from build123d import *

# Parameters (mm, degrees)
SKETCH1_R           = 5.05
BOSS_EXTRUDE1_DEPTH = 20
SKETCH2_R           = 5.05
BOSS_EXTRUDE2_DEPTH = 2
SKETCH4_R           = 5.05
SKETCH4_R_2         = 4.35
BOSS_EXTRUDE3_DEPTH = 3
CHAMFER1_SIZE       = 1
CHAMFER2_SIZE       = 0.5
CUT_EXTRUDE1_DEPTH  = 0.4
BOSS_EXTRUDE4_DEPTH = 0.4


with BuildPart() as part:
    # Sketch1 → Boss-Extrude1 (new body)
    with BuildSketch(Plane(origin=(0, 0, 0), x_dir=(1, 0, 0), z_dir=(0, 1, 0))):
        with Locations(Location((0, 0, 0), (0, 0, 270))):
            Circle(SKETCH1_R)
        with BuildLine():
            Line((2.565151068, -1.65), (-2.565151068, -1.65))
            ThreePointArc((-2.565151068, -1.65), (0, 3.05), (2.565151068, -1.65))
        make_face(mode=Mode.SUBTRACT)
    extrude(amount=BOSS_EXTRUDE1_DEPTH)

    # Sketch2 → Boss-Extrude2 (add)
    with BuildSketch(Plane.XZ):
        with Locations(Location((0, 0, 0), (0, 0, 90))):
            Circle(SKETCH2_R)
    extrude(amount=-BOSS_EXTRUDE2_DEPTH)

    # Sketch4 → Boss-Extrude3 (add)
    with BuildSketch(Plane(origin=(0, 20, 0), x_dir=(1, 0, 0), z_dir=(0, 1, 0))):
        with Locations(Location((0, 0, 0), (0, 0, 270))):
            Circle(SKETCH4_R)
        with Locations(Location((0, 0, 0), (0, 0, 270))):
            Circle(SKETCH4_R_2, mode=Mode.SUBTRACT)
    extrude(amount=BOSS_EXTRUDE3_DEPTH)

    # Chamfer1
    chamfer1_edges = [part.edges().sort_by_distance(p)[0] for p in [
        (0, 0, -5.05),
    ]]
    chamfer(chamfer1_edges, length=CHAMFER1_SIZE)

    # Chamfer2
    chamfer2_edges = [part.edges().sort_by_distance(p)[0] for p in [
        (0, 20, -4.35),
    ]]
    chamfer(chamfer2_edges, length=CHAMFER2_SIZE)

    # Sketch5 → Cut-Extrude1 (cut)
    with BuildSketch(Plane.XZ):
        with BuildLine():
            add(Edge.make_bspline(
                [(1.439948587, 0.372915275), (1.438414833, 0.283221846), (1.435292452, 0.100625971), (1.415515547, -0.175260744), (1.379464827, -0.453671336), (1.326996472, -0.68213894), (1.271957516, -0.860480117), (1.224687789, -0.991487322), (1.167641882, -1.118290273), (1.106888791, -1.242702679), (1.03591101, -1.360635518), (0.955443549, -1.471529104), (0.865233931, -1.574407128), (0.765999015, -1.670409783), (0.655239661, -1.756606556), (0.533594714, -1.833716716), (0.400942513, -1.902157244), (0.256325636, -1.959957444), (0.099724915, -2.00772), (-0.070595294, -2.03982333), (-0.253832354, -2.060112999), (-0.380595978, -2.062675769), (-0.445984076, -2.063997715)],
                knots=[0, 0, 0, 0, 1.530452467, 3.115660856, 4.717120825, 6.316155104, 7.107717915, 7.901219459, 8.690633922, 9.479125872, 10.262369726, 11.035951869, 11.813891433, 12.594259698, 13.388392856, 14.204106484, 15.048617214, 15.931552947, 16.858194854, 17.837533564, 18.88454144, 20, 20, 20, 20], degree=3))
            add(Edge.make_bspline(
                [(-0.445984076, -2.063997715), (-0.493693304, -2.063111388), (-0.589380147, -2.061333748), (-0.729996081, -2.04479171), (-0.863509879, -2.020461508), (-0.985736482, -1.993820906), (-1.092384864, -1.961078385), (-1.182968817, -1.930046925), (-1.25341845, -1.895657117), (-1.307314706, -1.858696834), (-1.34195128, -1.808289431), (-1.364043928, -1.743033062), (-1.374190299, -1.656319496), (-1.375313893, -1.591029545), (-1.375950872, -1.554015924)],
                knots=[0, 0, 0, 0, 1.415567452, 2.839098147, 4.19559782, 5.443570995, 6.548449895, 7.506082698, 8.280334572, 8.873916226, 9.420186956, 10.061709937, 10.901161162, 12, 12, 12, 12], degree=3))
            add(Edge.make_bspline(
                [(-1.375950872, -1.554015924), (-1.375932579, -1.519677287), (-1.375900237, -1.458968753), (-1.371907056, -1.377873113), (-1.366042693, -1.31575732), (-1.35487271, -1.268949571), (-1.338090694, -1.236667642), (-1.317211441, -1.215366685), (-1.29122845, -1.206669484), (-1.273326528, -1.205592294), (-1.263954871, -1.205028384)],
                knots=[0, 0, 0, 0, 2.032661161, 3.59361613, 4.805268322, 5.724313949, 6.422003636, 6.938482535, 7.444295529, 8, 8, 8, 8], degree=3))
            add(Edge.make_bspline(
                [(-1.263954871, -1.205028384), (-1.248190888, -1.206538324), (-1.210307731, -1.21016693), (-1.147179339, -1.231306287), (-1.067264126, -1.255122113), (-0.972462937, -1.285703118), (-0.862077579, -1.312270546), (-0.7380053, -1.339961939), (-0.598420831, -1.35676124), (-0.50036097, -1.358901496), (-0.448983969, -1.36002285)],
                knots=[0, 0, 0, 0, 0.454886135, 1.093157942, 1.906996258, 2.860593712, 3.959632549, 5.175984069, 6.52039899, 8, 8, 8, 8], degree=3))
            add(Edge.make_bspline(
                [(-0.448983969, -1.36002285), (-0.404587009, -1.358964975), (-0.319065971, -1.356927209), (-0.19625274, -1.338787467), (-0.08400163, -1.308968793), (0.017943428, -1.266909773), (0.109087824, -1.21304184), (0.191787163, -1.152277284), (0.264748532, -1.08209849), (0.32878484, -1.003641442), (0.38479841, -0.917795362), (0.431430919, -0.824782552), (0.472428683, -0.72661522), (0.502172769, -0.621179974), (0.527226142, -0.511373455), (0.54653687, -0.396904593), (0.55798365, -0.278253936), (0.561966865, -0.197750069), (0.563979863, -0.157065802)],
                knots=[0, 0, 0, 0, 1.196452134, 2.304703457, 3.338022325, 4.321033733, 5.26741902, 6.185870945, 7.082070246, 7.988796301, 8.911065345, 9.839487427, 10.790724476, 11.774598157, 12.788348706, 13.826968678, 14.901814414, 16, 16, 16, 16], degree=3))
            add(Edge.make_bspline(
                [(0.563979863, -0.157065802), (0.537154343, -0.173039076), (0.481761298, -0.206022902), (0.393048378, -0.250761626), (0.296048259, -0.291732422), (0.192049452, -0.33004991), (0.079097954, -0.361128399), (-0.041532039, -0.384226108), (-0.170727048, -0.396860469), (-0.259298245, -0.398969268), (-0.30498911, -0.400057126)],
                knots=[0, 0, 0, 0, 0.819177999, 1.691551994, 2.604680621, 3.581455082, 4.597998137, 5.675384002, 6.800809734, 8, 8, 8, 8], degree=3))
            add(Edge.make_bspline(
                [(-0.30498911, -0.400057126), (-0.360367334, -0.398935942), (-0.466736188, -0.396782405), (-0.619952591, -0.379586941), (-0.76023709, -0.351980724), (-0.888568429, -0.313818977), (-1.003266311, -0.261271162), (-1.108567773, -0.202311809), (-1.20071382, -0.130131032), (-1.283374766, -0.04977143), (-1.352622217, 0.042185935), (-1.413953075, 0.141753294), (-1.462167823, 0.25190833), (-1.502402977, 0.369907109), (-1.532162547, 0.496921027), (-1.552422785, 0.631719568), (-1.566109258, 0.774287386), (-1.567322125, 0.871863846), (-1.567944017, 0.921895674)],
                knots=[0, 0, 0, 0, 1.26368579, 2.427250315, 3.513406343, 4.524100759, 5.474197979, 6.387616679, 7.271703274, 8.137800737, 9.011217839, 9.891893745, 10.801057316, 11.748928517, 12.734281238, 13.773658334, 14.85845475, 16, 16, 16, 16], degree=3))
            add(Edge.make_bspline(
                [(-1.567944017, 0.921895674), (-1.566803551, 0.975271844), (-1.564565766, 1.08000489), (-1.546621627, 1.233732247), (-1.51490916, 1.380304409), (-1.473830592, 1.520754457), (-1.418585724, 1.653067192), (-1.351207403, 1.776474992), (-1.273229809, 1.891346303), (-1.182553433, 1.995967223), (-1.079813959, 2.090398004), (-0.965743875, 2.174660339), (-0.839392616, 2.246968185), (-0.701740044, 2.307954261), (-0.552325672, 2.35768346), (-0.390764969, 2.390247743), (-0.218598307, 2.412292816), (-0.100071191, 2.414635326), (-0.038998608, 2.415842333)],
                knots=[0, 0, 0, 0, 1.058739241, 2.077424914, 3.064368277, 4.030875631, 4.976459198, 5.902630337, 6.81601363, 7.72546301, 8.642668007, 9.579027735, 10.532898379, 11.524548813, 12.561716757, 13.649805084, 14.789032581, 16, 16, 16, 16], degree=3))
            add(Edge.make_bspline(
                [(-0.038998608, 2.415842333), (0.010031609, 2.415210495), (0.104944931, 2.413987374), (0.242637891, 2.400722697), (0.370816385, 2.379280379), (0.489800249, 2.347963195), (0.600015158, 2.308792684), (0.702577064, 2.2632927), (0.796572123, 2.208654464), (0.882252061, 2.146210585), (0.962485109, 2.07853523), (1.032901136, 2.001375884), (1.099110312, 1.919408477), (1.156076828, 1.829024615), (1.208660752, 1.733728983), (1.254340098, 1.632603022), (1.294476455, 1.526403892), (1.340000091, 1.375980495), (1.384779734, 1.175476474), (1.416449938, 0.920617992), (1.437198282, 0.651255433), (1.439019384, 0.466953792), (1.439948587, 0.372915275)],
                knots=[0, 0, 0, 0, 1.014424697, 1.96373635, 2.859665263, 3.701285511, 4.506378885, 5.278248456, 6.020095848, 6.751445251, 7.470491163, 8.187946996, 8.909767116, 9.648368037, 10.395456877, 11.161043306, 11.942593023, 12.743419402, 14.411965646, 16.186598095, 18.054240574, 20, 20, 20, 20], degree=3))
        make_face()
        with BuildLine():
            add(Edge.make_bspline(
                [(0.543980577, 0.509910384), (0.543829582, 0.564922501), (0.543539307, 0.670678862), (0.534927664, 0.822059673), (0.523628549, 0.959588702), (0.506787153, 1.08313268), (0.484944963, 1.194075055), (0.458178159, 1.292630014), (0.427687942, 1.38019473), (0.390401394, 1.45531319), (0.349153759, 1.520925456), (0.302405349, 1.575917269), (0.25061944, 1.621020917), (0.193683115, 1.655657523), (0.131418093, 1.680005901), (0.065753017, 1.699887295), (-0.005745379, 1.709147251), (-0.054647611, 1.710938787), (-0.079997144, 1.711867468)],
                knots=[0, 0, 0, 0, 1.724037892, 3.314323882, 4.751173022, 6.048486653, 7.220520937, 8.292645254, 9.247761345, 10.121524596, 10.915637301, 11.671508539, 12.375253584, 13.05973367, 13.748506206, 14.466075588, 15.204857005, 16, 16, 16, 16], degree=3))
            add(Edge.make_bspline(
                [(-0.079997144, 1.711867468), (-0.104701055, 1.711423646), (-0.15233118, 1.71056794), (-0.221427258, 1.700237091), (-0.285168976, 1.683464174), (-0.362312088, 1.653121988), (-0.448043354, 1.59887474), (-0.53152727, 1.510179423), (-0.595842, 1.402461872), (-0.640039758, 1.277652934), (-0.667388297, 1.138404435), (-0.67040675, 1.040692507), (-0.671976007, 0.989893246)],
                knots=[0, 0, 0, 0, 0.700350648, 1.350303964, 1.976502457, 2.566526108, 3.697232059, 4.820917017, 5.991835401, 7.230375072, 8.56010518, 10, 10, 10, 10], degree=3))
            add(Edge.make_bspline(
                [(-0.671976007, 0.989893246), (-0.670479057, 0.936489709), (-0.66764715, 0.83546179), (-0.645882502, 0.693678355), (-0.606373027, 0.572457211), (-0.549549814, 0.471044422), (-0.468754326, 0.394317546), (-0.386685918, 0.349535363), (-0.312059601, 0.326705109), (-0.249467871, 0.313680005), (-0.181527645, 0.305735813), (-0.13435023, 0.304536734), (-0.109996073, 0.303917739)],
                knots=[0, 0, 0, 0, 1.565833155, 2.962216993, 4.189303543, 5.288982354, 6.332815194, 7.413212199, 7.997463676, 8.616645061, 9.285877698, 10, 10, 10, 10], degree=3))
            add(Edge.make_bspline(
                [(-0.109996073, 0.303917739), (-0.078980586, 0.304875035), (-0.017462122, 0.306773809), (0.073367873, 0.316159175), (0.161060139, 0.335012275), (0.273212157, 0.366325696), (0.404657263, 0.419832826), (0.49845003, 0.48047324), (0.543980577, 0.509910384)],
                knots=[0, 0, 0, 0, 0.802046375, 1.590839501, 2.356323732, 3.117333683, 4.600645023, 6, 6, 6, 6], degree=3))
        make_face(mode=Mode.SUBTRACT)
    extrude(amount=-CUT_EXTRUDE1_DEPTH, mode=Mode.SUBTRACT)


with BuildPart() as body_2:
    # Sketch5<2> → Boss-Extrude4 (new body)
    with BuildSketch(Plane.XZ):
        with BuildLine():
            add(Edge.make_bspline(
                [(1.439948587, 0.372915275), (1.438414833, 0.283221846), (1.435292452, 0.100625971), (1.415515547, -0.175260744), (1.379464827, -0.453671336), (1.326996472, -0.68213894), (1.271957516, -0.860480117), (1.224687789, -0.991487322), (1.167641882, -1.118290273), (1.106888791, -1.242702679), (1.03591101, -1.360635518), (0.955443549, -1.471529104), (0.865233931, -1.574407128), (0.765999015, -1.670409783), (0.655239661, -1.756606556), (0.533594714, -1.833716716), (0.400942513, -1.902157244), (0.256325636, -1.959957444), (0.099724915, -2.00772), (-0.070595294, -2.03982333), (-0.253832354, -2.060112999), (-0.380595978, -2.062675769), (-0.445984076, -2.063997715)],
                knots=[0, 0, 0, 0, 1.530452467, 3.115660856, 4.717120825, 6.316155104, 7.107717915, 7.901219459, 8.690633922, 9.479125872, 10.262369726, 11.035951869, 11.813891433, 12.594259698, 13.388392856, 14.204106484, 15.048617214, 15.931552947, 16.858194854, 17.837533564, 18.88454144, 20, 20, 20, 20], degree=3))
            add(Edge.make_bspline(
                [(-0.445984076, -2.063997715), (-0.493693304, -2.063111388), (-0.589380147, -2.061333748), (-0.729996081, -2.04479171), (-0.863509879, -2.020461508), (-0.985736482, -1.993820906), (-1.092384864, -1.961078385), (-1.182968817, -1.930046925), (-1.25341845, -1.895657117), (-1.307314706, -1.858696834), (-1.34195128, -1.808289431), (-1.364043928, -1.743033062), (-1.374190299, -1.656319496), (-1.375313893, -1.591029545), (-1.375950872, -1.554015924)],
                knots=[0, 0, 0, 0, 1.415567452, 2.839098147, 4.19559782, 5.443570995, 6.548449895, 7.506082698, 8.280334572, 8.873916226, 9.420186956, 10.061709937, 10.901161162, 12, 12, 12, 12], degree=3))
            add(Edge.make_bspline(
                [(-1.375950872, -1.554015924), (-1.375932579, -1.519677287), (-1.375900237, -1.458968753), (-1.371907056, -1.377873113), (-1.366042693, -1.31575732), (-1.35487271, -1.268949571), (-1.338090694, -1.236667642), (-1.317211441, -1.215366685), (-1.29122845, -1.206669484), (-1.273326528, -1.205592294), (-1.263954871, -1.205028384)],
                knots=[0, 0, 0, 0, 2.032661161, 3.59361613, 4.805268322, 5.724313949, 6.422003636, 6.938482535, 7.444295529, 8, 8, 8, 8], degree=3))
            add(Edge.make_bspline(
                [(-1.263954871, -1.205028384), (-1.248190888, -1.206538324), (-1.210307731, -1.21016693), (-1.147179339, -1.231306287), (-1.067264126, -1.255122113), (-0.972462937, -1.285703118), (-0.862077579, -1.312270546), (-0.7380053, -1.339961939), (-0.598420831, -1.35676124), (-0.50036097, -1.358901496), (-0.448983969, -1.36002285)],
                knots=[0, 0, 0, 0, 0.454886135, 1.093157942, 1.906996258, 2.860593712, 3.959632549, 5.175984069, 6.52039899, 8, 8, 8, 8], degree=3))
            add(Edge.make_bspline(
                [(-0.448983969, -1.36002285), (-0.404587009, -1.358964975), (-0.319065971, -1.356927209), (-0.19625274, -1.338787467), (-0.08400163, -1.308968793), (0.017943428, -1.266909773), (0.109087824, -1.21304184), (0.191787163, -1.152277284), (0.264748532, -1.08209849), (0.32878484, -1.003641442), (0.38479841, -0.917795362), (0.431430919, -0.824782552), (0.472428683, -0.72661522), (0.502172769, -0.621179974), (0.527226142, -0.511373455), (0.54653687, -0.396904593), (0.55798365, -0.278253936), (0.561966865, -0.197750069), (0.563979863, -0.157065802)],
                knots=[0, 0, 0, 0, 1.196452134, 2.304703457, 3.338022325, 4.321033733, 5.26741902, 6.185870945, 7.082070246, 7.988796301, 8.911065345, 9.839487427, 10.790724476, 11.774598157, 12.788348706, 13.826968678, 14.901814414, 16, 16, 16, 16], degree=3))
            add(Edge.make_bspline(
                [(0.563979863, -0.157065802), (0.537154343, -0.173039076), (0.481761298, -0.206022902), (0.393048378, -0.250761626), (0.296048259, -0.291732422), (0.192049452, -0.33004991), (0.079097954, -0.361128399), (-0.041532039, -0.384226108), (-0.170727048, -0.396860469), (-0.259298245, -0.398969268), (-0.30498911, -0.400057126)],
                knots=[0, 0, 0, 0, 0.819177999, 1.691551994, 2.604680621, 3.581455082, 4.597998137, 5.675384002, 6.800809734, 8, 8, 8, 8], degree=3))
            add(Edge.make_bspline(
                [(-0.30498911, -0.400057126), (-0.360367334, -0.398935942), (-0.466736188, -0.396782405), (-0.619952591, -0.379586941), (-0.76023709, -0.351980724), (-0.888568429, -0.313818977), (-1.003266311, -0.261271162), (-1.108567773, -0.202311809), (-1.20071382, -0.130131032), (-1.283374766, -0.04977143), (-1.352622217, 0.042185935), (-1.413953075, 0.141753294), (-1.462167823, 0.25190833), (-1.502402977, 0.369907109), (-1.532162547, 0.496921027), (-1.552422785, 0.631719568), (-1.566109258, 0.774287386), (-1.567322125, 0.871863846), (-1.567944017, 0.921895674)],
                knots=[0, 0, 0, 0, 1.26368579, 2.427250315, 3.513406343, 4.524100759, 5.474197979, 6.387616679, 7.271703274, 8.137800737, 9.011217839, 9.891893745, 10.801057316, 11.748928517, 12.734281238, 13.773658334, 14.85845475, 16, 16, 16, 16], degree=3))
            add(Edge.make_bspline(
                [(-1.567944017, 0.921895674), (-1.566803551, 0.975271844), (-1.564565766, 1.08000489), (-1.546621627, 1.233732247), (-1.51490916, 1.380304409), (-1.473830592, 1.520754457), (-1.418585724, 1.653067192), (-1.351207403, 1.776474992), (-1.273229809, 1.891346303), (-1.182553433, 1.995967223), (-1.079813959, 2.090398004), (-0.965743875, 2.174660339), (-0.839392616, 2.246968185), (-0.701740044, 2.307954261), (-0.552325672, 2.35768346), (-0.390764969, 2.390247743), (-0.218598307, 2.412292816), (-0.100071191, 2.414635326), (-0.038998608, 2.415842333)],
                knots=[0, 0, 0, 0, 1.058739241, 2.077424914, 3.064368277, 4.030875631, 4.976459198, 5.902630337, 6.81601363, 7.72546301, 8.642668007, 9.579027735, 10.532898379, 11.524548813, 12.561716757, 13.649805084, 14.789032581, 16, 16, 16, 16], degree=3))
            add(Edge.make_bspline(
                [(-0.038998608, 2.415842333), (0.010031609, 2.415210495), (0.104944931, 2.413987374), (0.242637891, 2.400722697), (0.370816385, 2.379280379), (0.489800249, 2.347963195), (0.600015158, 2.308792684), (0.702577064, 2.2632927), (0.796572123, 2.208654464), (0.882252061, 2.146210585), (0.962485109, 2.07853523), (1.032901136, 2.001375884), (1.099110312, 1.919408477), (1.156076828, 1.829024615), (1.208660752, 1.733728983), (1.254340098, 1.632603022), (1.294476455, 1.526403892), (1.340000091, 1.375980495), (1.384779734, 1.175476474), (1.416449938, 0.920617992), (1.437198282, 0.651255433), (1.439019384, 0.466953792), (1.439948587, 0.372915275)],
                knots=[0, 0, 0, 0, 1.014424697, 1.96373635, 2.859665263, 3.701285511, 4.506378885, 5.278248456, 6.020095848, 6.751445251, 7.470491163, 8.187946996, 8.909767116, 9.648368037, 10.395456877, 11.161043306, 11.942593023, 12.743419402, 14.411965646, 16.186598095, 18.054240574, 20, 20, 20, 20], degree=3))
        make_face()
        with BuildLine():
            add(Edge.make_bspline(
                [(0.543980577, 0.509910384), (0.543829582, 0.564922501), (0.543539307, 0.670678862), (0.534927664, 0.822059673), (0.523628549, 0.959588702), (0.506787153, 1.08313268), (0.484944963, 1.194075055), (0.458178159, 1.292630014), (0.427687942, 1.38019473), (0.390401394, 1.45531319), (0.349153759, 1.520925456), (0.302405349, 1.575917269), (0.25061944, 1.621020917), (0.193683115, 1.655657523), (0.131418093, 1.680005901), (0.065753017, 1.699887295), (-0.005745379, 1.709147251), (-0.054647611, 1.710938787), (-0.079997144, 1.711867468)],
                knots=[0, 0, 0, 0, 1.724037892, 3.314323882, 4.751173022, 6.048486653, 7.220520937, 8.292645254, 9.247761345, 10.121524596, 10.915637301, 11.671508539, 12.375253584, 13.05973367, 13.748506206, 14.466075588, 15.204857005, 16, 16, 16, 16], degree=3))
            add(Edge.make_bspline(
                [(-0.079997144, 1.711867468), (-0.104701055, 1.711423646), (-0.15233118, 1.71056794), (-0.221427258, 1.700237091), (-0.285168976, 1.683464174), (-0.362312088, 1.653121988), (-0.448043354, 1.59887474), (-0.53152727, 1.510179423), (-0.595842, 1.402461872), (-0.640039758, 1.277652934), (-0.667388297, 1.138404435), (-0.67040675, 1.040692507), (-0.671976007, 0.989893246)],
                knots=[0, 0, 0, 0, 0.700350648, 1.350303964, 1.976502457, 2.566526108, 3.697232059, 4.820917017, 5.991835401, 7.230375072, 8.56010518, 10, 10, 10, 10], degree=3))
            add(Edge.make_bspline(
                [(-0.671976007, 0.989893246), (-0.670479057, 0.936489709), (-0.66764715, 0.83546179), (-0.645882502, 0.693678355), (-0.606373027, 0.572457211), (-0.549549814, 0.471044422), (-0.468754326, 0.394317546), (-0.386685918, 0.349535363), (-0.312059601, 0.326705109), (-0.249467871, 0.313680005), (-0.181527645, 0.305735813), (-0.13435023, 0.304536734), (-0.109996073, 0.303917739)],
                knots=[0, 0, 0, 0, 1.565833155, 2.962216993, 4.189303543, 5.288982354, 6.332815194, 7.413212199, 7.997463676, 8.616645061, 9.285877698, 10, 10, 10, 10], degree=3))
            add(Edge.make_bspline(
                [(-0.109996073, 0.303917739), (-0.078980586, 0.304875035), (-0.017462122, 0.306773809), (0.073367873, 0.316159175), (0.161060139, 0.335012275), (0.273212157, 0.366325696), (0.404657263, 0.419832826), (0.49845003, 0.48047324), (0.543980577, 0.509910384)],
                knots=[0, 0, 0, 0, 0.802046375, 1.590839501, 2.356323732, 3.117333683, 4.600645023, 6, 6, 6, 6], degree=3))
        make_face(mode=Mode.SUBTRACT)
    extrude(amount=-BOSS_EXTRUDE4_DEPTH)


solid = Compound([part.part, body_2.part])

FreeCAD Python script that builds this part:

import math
import FreeCAD as App
import Part
import Sketcher
from FreeCAD import Vector


def edges_at(feature, points):
    """Names of the edges that pass closest to the given points."""
    edges = feature.Shape.Edges
    near = lambda p: min(range(len(edges)), key=lambda i: edges[i].distToShape(Part.Vertex(*p))[0])
    return sorted({f"Edge{near(p) + 1}" for p in points})

doc = App.newDocument("Part")
body = doc.addObject("PartDesign::Body", "Body")

# Sketch on XZ plane
sketch1 = doc.addObject("Sketcher::SketchObject", "Sketch")
body.addObject(sketch1)
sketch1.AttachmentSupport = (doc.XZ_Plane, [""])
sketch1.MapMode = "FlatFace"
sketch1.addGeometry([
    Part.Circle(Vector(0, 0, 0), Vector(0, 0, 1), 5),
    Part.ArcOfCircle(Part.Circle(Vector(0, 0, 0), Vector(0, 0, 1), 3), math.radians(147), math.radians(393)),
    Part.LineSegment(Vector(2.6, 1.6, 0), Vector(-2.6, 1.6, 0)),
], False)
sketch1.addConstraint([
    Sketcher.Constraint("Coincident", 1, 1, 2, 2),
    Sketcher.Constraint("Coincident", 2, 1, 1, 2),
    Sketcher.Constraint("Horizontal", 2),
    Sketcher.Constraint("Coincident", 0, 3, -1, 1),
    Sketcher.Constraint("Coincident", 1, 3, -1, 1),
    Sketcher.Constraint("Diameter", 0, 10.1),
    Sketcher.Constraint("Radius", 1, 3.05),
    Sketcher.Constraint("DistanceY", -1, 1, 1, 1, 1.65),
])
pad1 = doc.addObject("PartDesign::Pad", "Pad")
body.addObject(pad1)
pad1.Profile = sketch1
pad1.Length = 20
pad1.Reversed = True

# Sketch on XZ plane
sketch2 = doc.addObject("Sketcher::SketchObject", "Sketch001")
body.addObject(sketch2)
sketch2.AttachmentSupport = (doc.XZ_Plane, [""])
sketch2.MapMode = "FlatFace"
sketch2.addGeometry(Part.Circle(Vector(0, 0, 0), Vector(0, 0, 1), 5), False)
sketch2.addConstraint([
    Sketcher.Constraint("Coincident", 0, 3, -1, 1),
    Sketcher.Constraint("Diameter", 0, 10.1),
])
pad2 = doc.addObject("PartDesign::Pad", "Pad001")
body.addObject(pad2)
pad2.Profile = sketch2
pad2.Length = 2
pad2.Reversed = True

# Sketch on XZ plane
sketch3 = doc.addObject("Sketcher::SketchObject", "Sketch002")
body.addObject(sketch3)
sketch3.AttachmentSupport = (doc.XZ_Plane, [""])
sketch3.MapMode = "FlatFace"
sketch3.AttachmentOffset = App.Placement(Vector(0, 0, -20), App.Rotation())
sketch3.addGeometry([
    Part.Circle(Vector(0, 0, 0), Vector(0, 0, 1), 5),
    Part.Circle(Vector(0, 0, 0), Vector(0, 0, 1), 4.3),
], False)
sketch3.addConstraint([
    Sketcher.Constraint("Coincident", 0, 3, -1, 1),
    Sketcher.Constraint("Coincident", 1, 3, -1, 1),
    Sketcher.Constraint("Diameter", 0, 10.1),
    Sketcher.Constraint("Diameter", 1, 8.7),
])
pad3 = doc.addObject("PartDesign::Pad", "Pad002")
body.addObject(pad3)
pad3.Profile = sketch3
pad3.Length = 3
pad3.Reversed = True
doc.recompute()

chamfer = doc.addObject("PartDesign::Chamfer", "Chamfer")
body.addObject(chamfer)
chamfer.Base = (pad3, edges_at(pad3, [(0, 0, -5.05)]))
chamfer.Size = 1
doc.recompute()

chamfer2 = doc.addObject("PartDesign::Chamfer", "Chamfer001")
body.addObject(chamfer2)
chamfer2.Base = (chamfer, edges_at(chamfer, [(0, 20, -4.35)]))
chamfer2.Size = 0.5

# Sketch on XZ plane
sketch4 = doc.addObject("Sketcher::SketchObject", "Sketch003")
body.addObject(sketch4)
sketch4.AttachmentSupport = (doc.XZ_Plane, [""])
sketch4.MapMode = "FlatFace"
sketch4.addGeometry([
    Part.BSplineCurve([Vector(1.439949, 0.372915, 0), Vector(1.438415, 0.283222, 0), Vector(1.435292, 0.100626, 0), Vector(1.415516, -0.175261, 0), Vector(1.379465, -0.453671, 0), Vector(1.326996, -0.682139, 0), Vector(1.271958, -0.86048, 0), Vector(1.224688, -0.991487, 0), Vector(1.167642, -1.11829, 0), Vector(1.106889, -1.242703, 0), Vector(1.035911, -1.360636, 0), Vector(0.955444, -1.471529, 0), Vector(0.865234, -1.574407, 0), Vector(0.765999, -1.67041, 0), Vector(0.65524, -1.756607, 0), Vector(0.533595, -1.833717, 0), Vector(0.400943, -1.902157, 0), Vector(0.256326, -1.959957, 0), Vector(0.099725, -2.00772, 0), Vector(-0.070595, -2.039823, 0), Vector(-0.253832, -2.060113, 0), Vector(-0.380596, -2.062676, 0), Vector(-0.445984, -2.063998, 0)], [4, 1, 1, 1, 1, 1, 1, 1, 1, 1, 1, 1, 1, 1, 1, 1, 1, 1, 1, 1, 4], [0, 1.530452467, 3.115660856, 4.717120825, 6.316155104, 7.107717915, 7.901219459, 8.690633922, 9.479125872, 10.262369726, 11.035951869, 11.813891433, 12.594259698, 13.388392856, 14.204106484, 15.048617214, 15.931552947, 16.858194854, 17.837533564, 18.88454144, 20], False, 3, [1, 1, 1, 1, 1, 1, 1, 1, 1, 1, 1, 1, 1, 1, 1, 1, 1, 1, 1, 1, 1, 1, 1], False),  # 0
    Part.BSplineCurve([Vector(-0.038999, 2.415842, 0), Vector(0.010032, 2.41521, 0), Vector(0.104945, 2.413987, 0), Vector(0.242638, 2.400723, 0), Vector(0.370816, 2.37928, 0), Vector(0.4898, 2.347963, 0), Vector(0.600015, 2.308793, 0), Vector(0.702577, 2.263293, 0), Vector(0.796572, 2.208654, 0), Vector(0.882252, 2.146211, 0), Vector(0.962485, 2.078535, 0), Vector(1.032901, 2.001376, 0), Vector(1.09911, 1.919408, 0), Vector(1.156077, 1.829025, 0), Vector(1.208661, 1.733729, 0), Vector(1.25434, 1.632603, 0), Vector(1.294476, 1.526404, 0), Vector(1.34, 1.37598, 0), Vector(1.38478, 1.175476, 0), Vector(1.41645, 0.920618, 0), Vector(1.437198, 0.651255, 0), Vector(1.439019, 0.466954, 0), Vector(1.439949, 0.372915, 0)], [4, 1, 1, 1, 1, 1, 1, 1, 1, 1, 1, 1, 1, 1, 1, 1, 1, 1, 1, 1, 4], [0, 1.014424697, 1.96373635, 2.859665263, 3.701285511, 4.506378885, 5.278248456, 6.020095848, 6.751445251, 7.470491163, 8.187946996, 8.909767116, 9.648368037, 10.395456877, 11.161043306, 11.942593023, 12.743419402, 14.411965646, 16.186598095, 18.054240574, 20], False, 3, [1, 1, 1, 1, 1, 1, 1, 1, 1, 1, 1, 1, 1, 1, 1, 1, 1, 1, 1, 1, 1, 1, 1], False),  # 1
    Part.BSplineCurve([Vector(-1.567944, 0.921896, 0), Vector(-1.566804, 0.975272, 0), Vector(-1.564566, 1.080005, 0), Vector(-1.546622, 1.233732, 0), Vector(-1.514909, 1.380304, 0), Vector(-1.473831, 1.520754, 0), Vector(-1.418586, 1.653067, 0), Vector(-1.351207, 1.776475, 0), Vector(-1.27323, 1.891346, 0), Vector(-1.182553, 1.995967, 0), Vector(-1.079814, 2.090398, 0), Vector(-0.965744, 2.17466, 0), Vector(-0.839393, 2.246968, 0), Vector(-0.70174, 2.307954, 0), Vector(-0.552326, 2.357683, 0), Vector(-0.390765, 2.390248, 0), Vector(-0.218598, 2.412293, 0), Vector(-0.100071, 2.414635, 0), Vector(-0.038999, 2.415842, 0)], [4, 1, 1, 1, 1, 1, 1, 1, 1, 1, 1, 1, 1, 1, 1, 1, 4], [0, 1.058739241, 2.077424914, 3.064368277, 4.030875631, 4.976459198, 5.902630337, 6.81601363, 7.72546301, 8.642668007, 9.579027735, 10.532898379, 11.524548813, 12.561716757, 13.649805084, 14.789032581, 16], False, 3, [1, 1, 1, 1, 1, 1, 1, 1, 1, 1, 1, 1, 1, 1, 1, 1, 1, 1, 1], False),  # 2
    Part.BSplineCurve([Vector(-0.304989, -0.400057, 0), Vector(-0.360367, -0.398936, 0), Vector(-0.466736, -0.396782, 0), Vector(-0.619953, -0.379587, 0), Vector(-0.760237, -0.351981, 0), Vector(-0.888568, -0.313819, 0), Vector(-1.003266, -0.261271, 0), Vector(-1.108568, -0.202312, 0), Vector(-1.200714, -0.130131, 0), Vector(-1.283375, -0.049771, 0), Vector(-1.352622, 0.042186, 0), Vector(-1.413953, 0.141753, 0), Vector(-1.462168, 0.251908, 0), Vector(-1.502403, 0.369907, 0), Vector(-1.532163, 0.496921, 0), Vector(-1.552423, 0.63172, 0), Vector(-1.566109, 0.774287, 0), Vector(-1.567322, 0.871864, 0), Vector(-1.567944, 0.921896, 0)], [4, 1, 1, 1, 1, 1, 1, 1, 1, 1, 1, 1, 1, 1, 1, 1, 4], [0, 1.26368579, 2.427250315, 3.513406343, 4.524100759, 5.474197979, 6.387616679, 7.271703274, 8.137800737, 9.011217839, 9.891893745, 10.801057316, 11.748928517, 12.734281238, 13.773658334, 14.85845475, 16], False, 3, [1, 1, 1, 1, 1, 1, 1, 1, 1, 1, 1, 1, 1, 1, 1, 1, 1, 1, 1], False),  # 3
    Part.BSplineCurve([Vector(0.56398, -0.157066, 0), Vector(0.537154, -0.173039, 0), Vector(0.481761, -0.206023, 0), Vector(0.393048, -0.250762, 0), Vector(0.296048, -0.291732, 0), Vector(0.192049, -0.33005, 0), Vector(0.079098, -0.361128, 0), Vector(-0.041532, -0.384226, 0), Vector(-0.170727, -0.39686, 0), Vector(-0.259298, -0.398969, 0), Vector(-0.304989, -0.400057, 0)], [4, 1, 1, 1, 1, 1, 1, 1, 4], [0, 0.819177999, 1.691551994, 2.604680621, 3.581455082, 4.597998137, 5.675384002, 6.800809734, 8], False, 3, [1, 1, 1, 1, 1, 1, 1, 1, 1, 1, 1], False),  # 4
    Part.BSplineCurve([Vector(-0.448984, -1.360023, 0), Vector(-0.404587, -1.358965, 0), Vector(-0.319066, -1.356927, 0), Vector(-0.196253, -1.338787, 0), Vector(-0.084002, -1.308969, 0), Vector(0.017943, -1.26691, 0), Vector(0.109088, -1.213042, 0), Vector(0.191787, -1.152277, 0), Vector(0.264749, -1.082098, 0), Vector(0.328785, -1.003641, 0), Vector(0.384798, -0.917795, 0), Vector(0.431431, -0.824783, 0), Vector(0.472429, -0.726615, 0), Vector(0.502173, -0.62118, 0), Vector(0.527226, -0.511373, 0), Vector(0.546537, -0.396905, 0), Vector(0.557984, -0.278254, 0), Vector(0.561967, -0.19775, 0), Vector(0.56398, -0.157066, 0)], [4, 1, 1, 1, 1, 1, 1, 1, 1, 1, 1, 1, 1, 1, 1, 1, 4], [0, 1.196452134, 2.304703457, 3.338022325, 4.321033733, 5.26741902, 6.185870945, 7.082070246, 7.988796301, 8.911065345, 9.839487427, 10.790724476, 11.774598157, 12.788348706, 13.826968678, 14.901814414, 16], False, 3, [1, 1, 1, 1, 1, 1, 1, 1, 1, 1, 1, 1, 1, 1, 1, 1, 1, 1, 1], False),  # 5
    Part.BSplineCurve([Vector(-1.263955, -1.205028, 0), Vector(-1.248191, -1.206538, 0), Vector(-1.210308, -1.210167, 0), Vector(-1.147179, -1.231306, 0), Vector(-1.067264, -1.255122, 0), Vector(-0.972463, -1.285703, 0), Vector(-0.862078, -1.312271, 0), Vector(-0.738005, -1.339962, 0), Vector(-0.598421, -1.356761, 0), Vector(-0.500361, -1.358901, 0), Vector(-0.448984, -1.360023, 0)], [4, 1, 1, 1, 1, 1, 1, 1, 4], [0, 0.454886135, 1.093157942, 1.906996258, 2.860593712, 3.959632549, 5.175984069, 6.52039899, 8], False, 3, [1, 1, 1, 1, 1, 1, 1, 1, 1, 1, 1], False),  # 6
    Part.BSplineCurve([Vector(-1.375951, -1.554016, 0), Vector(-1.375933, -1.519677, 0), Vector(-1.3759, -1.458969, 0), Vector(-1.371907, -1.377873, 0), Vector(-1.366043, -1.315757, 0), Vector(-1.354873, -1.26895, 0), Vector(-1.338091, -1.236668, 0), Vector(-1.317211, -1.215367, 0), Vector(-1.291228, -1.206669, 0), Vector(-1.273327, -1.205592, 0), Vector(-1.263955, -1.205028, 0)], [4, 1, 1, 1, 1, 1, 1, 1, 4], [0, 2.032661161, 3.59361613, 4.805268322, 5.724313949, 6.422003636, 6.938482535, 7.444295529, 8], False, 3, [1, 1, 1, 1, 1, 1, 1, 1, 1, 1, 1], False),  # 7
    Part.BSplineCurve([Vector(-0.445984, -2.063998, 0), Vector(-0.493693, -2.063111, 0), Vector(-0.58938, -2.061334, 0), Vector(-0.729996, -2.044792, 0), Vector(-0.86351, -2.020462, 0), Vector(-0.985736, -1.993821, 0), Vector(-1.092385, -1.961078, 0), Vector(-1.182969, -1.930047, 0), Vector(-1.253418, -1.895657, 0), Vector(-1.307315, -1.858697, 0), Vector(-1.341951, -1.808289, 0), Vector(-1.364044, -1.743033, 0), Vector(-1.37419, -1.656319, 0), Vector(-1.375314, -1.59103, 0), Vector(-1.375951, -1.554016, 0)], [4, 1, 1, 1, 1, 1, 1, 1, 1, 1, 1, 1, 4], [0, 1.415567452, 2.839098147, 4.19559782, 5.443570995, 6.548449895, 7.506082698, 8.280334572, 8.873916226, 9.420186956, 10.061709937, 10.901161162, 12], False, 3, [1, 1, 1, 1, 1, 1, 1, 1, 1, 1, 1, 1, 1, 1, 1], False),  # 8
    Part.BSplineCurve([Vector(-0.109996, 0.303918, 0), Vector(-0.078981, 0.304875, 0), Vector(-0.017462, 0.306774, 0), Vector(0.073368, 0.316159, 0), Vector(0.16106, 0.335012, 0), Vector(0.273212, 0.366326, 0), Vector(0.404657, 0.419833, 0), Vector(0.49845, 0.480473, 0), Vector(0.543981, 0.50991, 0)], [4, 1, 1, 1, 1, 1, 4], [0, 0.802046375, 1.590839501, 2.356323732, 3.117333683, 4.600645023, 6], False, 3, [1, 1, 1, 1, 1, 1, 1, 1, 1], False),  # 9
    Part.BSplineCurve([Vector(-0.671976, 0.989893, 0), Vector(-0.670479, 0.93649, 0), Vector(-0.667647, 0.835462, 0), Vector(-0.645883, 0.693678, 0), Vector(-0.606373, 0.572457, 0), Vector(-0.54955, 0.471044, 0), Vector(-0.468754, 0.394318, 0), Vector(-0.386686, 0.349535, 0), Vector(-0.31206, 0.326705, 0), Vector(-0.249468, 0.31368, 0), Vector(-0.181528, 0.305736, 0), Vector(-0.13435, 0.304537, 0), Vector(-0.109996, 0.303918, 0)], [4, 1, 1, 1, 1, 1, 1, 1, 1, 1, 4], [0, 1.565833155, 2.962216993, 4.189303543, 5.288982354, 6.332815194, 7.413212199, 7.997463676, 8.616645061, 9.285877698, 10], False, 3, [1, 1, 1, 1, 1, 1, 1, 1, 1, 1, 1, 1, 1], False),  # 10
    Part.BSplineCurve([Vector(-0.079997, 1.711867, 0), Vector(-0.104701, 1.711424, 0), Vector(-0.152331, 1.710568, 0), Vector(-0.221427, 1.700237, 0), Vector(-0.285169, 1.683464, 0), Vector(-0.362312, 1.653122, 0), Vector(-0.448043, 1.598875, 0), Vector(-0.531527, 1.510179, 0), Vector(-0.595842, 1.402462, 0), Vector(-0.64004, 1.277653, 0), Vector(-0.667388, 1.138404, 0), Vector(-0.670407, 1.040693, 0), Vector(-0.671976, 0.989893, 0)], [4, 1, 1, 1, 1, 1, 1, 1, 1, 1, 4], [0, 0.700350648, 1.350303964, 1.976502457, 2.566526108, 3.697232059, 4.820917017, 5.991835401, 7.230375072, 8.56010518, 10], False, 3, [1, 1, 1, 1, 1, 1, 1, 1, 1, 1, 1, 1, 1], False),  # 11
    Part.BSplineCurve([Vector(0.543981, 0.50991, 0), Vector(0.54383, 0.564923, 0), Vector(0.543539, 0.670679, 0), Vector(0.534928, 0.82206, 0), Vector(0.523629, 0.959589, 0), Vector(0.506787, 1.083133, 0), Vector(0.484945, 1.194075, 0), Vector(0.458178, 1.29263, 0), Vector(0.427688, 1.380195, 0), Vector(0.390401, 1.455313, 0), Vector(0.349154, 1.520925, 0), Vector(0.302405, 1.575917, 0), Vector(0.250619, 1.621021, 0), Vector(0.193683, 1.655658, 0), Vector(0.131418, 1.680006, 0), Vector(0.065753, 1.699887, 0), Vector(-0.005745, 1.709147, 0), Vector(-0.054648, 1.710939, 0), Vector(-0.079997, 1.711867, 0)], [4, 1, 1, 1, 1, 1, 1, 1, 1, 1, 1, 1, 1, 1, 1, 1, 4], [0, 1.724037892, 3.314323882, 4.751173022, 6.048486653, 7.220520937, 8.292645254, 9.247761345, 10.121524596, 10.915637301, 11.671508539, 12.375253584, 13.05973367, 13.748506206, 14.466075588, 15.204857005, 16], False, 3, [1, 1, 1, 1, 1, 1, 1, 1, 1, 1, 1, 1, 1, 1, 1, 1, 1, 1, 1], False),  # 12
], False)
sketch4.addConstraint([
    Sketcher.Constraint("Block", 0),
    Sketcher.Constraint("Block", 1),
    Sketcher.Constraint("Block", 2),
    Sketcher.Constraint("Block", 3),
    Sketcher.Constraint("Block", 4),
    Sketcher.Constraint("Block", 5),
    Sketcher.Constraint("Block", 6),
    Sketcher.Constraint("Block", 7),
    Sketcher.Constraint("Block", 8),
    Sketcher.Constraint("Block", 9),
    Sketcher.Constraint("Block", 10),
    Sketcher.Constraint("Block", 11),
    Sketcher.Constraint("Block", 12),
])
pocket1 = doc.addObject("PartDesign::Pocket", "Pocket")
body.addObject(pocket1)
pocket1.Profile = sketch4
pocket1.Length = 0.4
body2 = doc.addObject("PartDesign::Body", "Body001")

# Sketch on XZ plane
sketch5 = doc.addObject("Sketcher::SketchObject", "Sketch004")
body2.addObject(sketch5)
sketch5.AttachmentSupport = (doc.getObject("XZ_Plane001"), [""])
sketch5.MapMode = "FlatFace"
sketch5.addGeometry([
    Part.BSplineCurve([Vector(1.439949, 0.372915, 0), Vector(1.438415, 0.283222, 0), Vector(1.435292, 0.100626, 0), Vector(1.415516, -0.175261, 0), Vector(1.379465, -0.453671, 0), Vector(1.326996, -0.682139, 0), Vector(1.271958, -0.86048, 0), Vector(1.224688, -0.991487, 0), Vector(1.167642, -1.11829, 0), Vector(1.106889, -1.242703, 0), Vector(1.035911, -1.360636, 0), Vector(0.955444, -1.471529, 0), Vector(0.865234, -1.574407, 0), Vector(0.765999, -1.67041, 0), Vector(0.65524, -1.756607, 0), Vector(0.533595, -1.833717, 0), Vector(0.400943, -1.902157, 0), Vector(0.256326, -1.959957, 0), Vector(0.099725, -2.00772, 0), Vector(-0.070595, -2.039823, 0), Vector(-0.253832, -2.060113, 0), Vector(-0.380596, -2.062676, 0), Vector(-0.445984, -2.063998, 0)], [4, 1, 1, 1, 1, 1, 1, 1, 1, 1, 1, 1, 1, 1, 1, 1, 1, 1, 1, 1, 4], [0, 1.530452467, 3.115660856, 4.717120825, 6.316155104, 7.107717915, 7.901219459, 8.690633922, 9.479125872, 10.262369726, 11.035951869, 11.813891433, 12.594259698, 13.388392856, 14.204106484, 15.048617214, 15.931552947, 16.858194854, 17.837533564, 18.88454144, 20], False, 3, [1, 1, 1, 1, 1, 1, 1, 1, 1, 1, 1, 1, 1, 1, 1, 1, 1, 1, 1, 1, 1, 1, 1], False),  # 0
    Part.BSplineCurve([Vector(-0.038999, 2.415842, 0), Vector(0.010032, 2.41521, 0), Vector(0.104945, 2.413987, 0), Vector(0.242638, 2.400723, 0), Vector(0.370816, 2.37928, 0), Vector(0.4898, 2.347963, 0), Vector(0.600015, 2.308793, 0), Vector(0.702577, 2.263293, 0), Vector(0.796572, 2.208654, 0), Vector(0.882252, 2.146211, 0), Vector(0.962485, 2.078535, 0), Vector(1.032901, 2.001376, 0), Vector(1.09911, 1.919408, 0), Vector(1.156077, 1.829025, 0), Vector(1.208661, 1.733729, 0), Vector(1.25434, 1.632603, 0), Vector(1.294476, 1.526404, 0), Vector(1.34, 1.37598, 0), Vector(1.38478, 1.175476, 0), Vector(1.41645, 0.920618, 0), Vector(1.437198, 0.651255, 0), Vector(1.439019, 0.466954, 0), Vector(1.439949, 0.372915, 0)], [4, 1, 1, 1, 1, 1, 1, 1, 1, 1, 1, 1, 1, 1, 1, 1, 1, 1, 1, 1, 4], [0, 1.014424697, 1.96373635, 2.859665263, 3.701285511, 4.506378885, 5.278248456, 6.020095848, 6.751445251, 7.470491163, 8.187946996, 8.909767116, 9.648368037, 10.395456877, 11.161043306, 11.942593023, 12.743419402, 14.411965646, 16.186598095, 18.054240574, 20], False, 3, [1, 1, 1, 1, 1, 1, 1, 1, 1, 1, 1, 1, 1, 1, 1, 1, 1, 1, 1, 1, 1, 1, 1], False),  # 1
    Part.BSplineCurve([Vector(-1.567944, 0.921896, 0), Vector(-1.566804, 0.975272, 0), Vector(-1.564566, 1.080005, 0), Vector(-1.546622, 1.233732, 0), Vector(-1.514909, 1.380304, 0), Vector(-1.473831, 1.520754, 0), Vector(-1.418586, 1.653067, 0), Vector(-1.351207, 1.776475, 0), Vector(-1.27323, 1.891346, 0), Vector(-1.182553, 1.995967, 0), Vector(-1.079814, 2.090398, 0), Vector(-0.965744, 2.17466, 0), Vector(-0.839393, 2.246968, 0), Vector(-0.70174, 2.307954, 0), Vector(-0.552326, 2.357683, 0), Vector(-0.390765, 2.390248, 0), Vector(-0.218598, 2.412293, 0), Vector(-0.100071, 2.414635, 0), Vector(-0.038999, 2.415842, 0)], [4, 1, 1, 1, 1, 1, 1, 1, 1, 1, 1, 1, 1, 1, 1, 1, 4], [0, 1.058739241, 2.077424914, 3.064368277, 4.030875631, 4.976459198, 5.902630337, 6.81601363, 7.72546301, 8.642668007, 9.579027735, 10.532898379, 11.524548813, 12.561716757, 13.649805084, 14.789032581, 16], False, 3, [1, 1, 1, 1, 1, 1, 1, 1, 1, 1, 1, 1, 1, 1, 1, 1, 1, 1, 1], False),  # 2
    Part.BSplineCurve([Vector(-0.304989, -0.400057, 0), Vector(-0.360367, -0.398936, 0), Vector(-0.466736, -0.396782, 0), Vector(-0.619953, -0.379587, 0), Vector(-0.760237, -0.351981, 0), Vector(-0.888568, -0.313819, 0), Vector(-1.003266, -0.261271, 0), Vector(-1.108568, -0.202312, 0), Vector(-1.200714, -0.130131, 0), Vector(-1.283375, -0.049771, 0), Vector(-1.352622, 0.042186, 0), Vector(-1.413953, 0.141753, 0), Vector(-1.462168, 0.251908, 0), Vector(-1.502403, 0.369907, 0), Vector(-1.532163, 0.496921, 0), Vector(-1.552423, 0.63172, 0), Vector(-1.566109, 0.774287, 0), Vector(-1.567322, 0.871864, 0), Vector(-1.567944, 0.921896, 0)], [4, 1, 1, 1, 1, 1, 1, 1, 1, 1, 1, 1, 1, 1, 1, 1, 4], [0, 1.26368579, 2.427250315, 3.513406343, 4.524100759, 5.474197979, 6.387616679, 7.271703274, 8.137800737, 9.011217839, 9.891893745, 10.801057316, 11.748928517, 12.734281238, 13.773658334, 14.85845475, 16], False, 3, [1, 1, 1, 1, 1, 1, 1, 1, 1, 1, 1, 1, 1, 1, 1, 1, 1, 1, 1], False),  # 3
    Part.BSplineCurve([Vector(0.56398, -0.157066, 0), Vector(0.537154, -0.173039, 0), Vector(0.481761, -0.206023, 0), Vector(0.393048, -0.250762, 0), Vector(0.296048, -0.291732, 0), Vector(0.192049, -0.33005, 0), Vector(0.079098, -0.361128, 0), Vector(-0.041532, -0.384226, 0), Vector(-0.170727, -0.39686, 0), Vector(-0.259298, -0.398969, 0), Vector(-0.304989, -0.400057, 0)], [4, 1, 1, 1, 1, 1, 1, 1, 4], [0, 0.819177999, 1.691551994, 2.604680621, 3.581455082, 4.597998137, 5.675384002, 6.800809734, 8], False, 3, [1, 1, 1, 1, 1, 1, 1, 1, 1, 1, 1], False),  # 4
    Part.BSplineCurve([Vector(-0.448984, -1.360023, 0), Vector(-0.404587, -1.358965, 0), Vector(-0.319066, -1.356927, 0), Vector(-0.196253, -1.338787, 0), Vector(-0.084002, -1.308969, 0), Vector(0.017943, -1.26691, 0), Vector(0.109088, -1.213042, 0), Vector(0.191787, -1.152277, 0), Vector(0.264749, -1.082098, 0), Vector(0.328785, -1.003641, 0), Vector(0.384798, -0.917795, 0), Vector(0.431431, -0.824783, 0), Vector(0.472429, -0.726615, 0), Vector(0.502173, -0.62118, 0), Vector(0.527226, -0.511373, 0), Vector(0.546537, -0.396905, 0), Vector(0.557984, -0.278254, 0), Vector(0.561967, -0.19775, 0), Vector(0.56398, -0.157066, 0)], [4, 1, 1, 1, 1, 1, 1, 1, 1, 1, 1, 1, 1, 1, 1, 1, 4], [0, 1.196452134, 2.304703457, 3.338022325, 4.321033733, 5.26741902, 6.185870945, 7.082070246, 7.988796301, 8.911065345, 9.839487427, 10.790724476, 11.774598157, 12.788348706, 13.826968678, 14.901814414, 16], False, 3, [1, 1, 1, 1, 1, 1, 1, 1, 1, 1, 1, 1, 1, 1, 1, 1, 1, 1, 1], False),  # 5
    Part.BSplineCurve([Vector(-1.263955, -1.205028, 0), Vector(-1.248191, -1.206538, 0), Vector(-1.210308, -1.210167, 0), Vector(-1.147179, -1.231306, 0), Vector(-1.067264, -1.255122, 0), Vector(-0.972463, -1.285703, 0), Vector(-0.862078, -1.312271, 0), Vector(-0.738005, -1.339962, 0), Vector(-0.598421, -1.356761, 0), Vector(-0.500361, -1.358901, 0), Vector(-0.448984, -1.360023, 0)], [4, 1, 1, 1, 1, 1, 1, 1, 4], [0, 0.454886135, 1.093157942, 1.906996258, 2.860593712, 3.959632549, 5.175984069, 6.52039899, 8], False, 3, [1, 1, 1, 1, 1, 1, 1, 1, 1, 1, 1], False),  # 6
    Part.BSplineCurve([Vector(-1.375951, -1.554016, 0), Vector(-1.375933, -1.519677, 0), Vector(-1.3759, -1.458969, 0), Vector(-1.371907, -1.377873, 0), Vector(-1.366043, -1.315757, 0), Vector(-1.354873, -1.26895, 0), Vector(-1.338091, -1.236668, 0), Vector(-1.317211, -1.215367, 0), Vector(-1.291228, -1.206669, 0), Vector(-1.273327, -1.205592, 0), Vector(-1.263955, -1.205028, 0)], [4, 1, 1, 1, 1, 1, 1, 1, 4], [0, 2.032661161, 3.59361613, 4.805268322, 5.724313949, 6.422003636, 6.938482535, 7.444295529, 8], False, 3, [1, 1, 1, 1, 1, 1, 1, 1, 1, 1, 1], False),  # 7
    Part.BSplineCurve([Vector(-0.445984, -2.063998, 0), Vector(-0.493693, -2.063111, 0), Vector(-0.58938, -2.061334, 0), Vector(-0.729996, -2.044792, 0), Vector(-0.86351, -2.020462, 0), Vector(-0.985736, -1.993821, 0), Vector(-1.092385, -1.961078, 0), Vector(-1.182969, -1.930047, 0), Vector(-1.253418, -1.895657, 0), Vector(-1.307315, -1.858697, 0), Vector(-1.341951, -1.808289, 0), Vector(-1.364044, -1.743033, 0), Vector(-1.37419, -1.656319, 0), Vector(-1.375314, -1.59103, 0), Vector(-1.375951, -1.554016, 0)], [4, 1, 1, 1, 1, 1, 1, 1, 1, 1, 1, 1, 4], [0, 1.415567452, 2.839098147, 4.19559782, 5.443570995, 6.548449895, 7.506082698, 8.280334572, 8.873916226, 9.420186956, 10.061709937, 10.901161162, 12], False, 3, [1, 1, 1, 1, 1, 1, 1, 1, 1, 1, 1, 1, 1, 1, 1], False),  # 8
    Part.BSplineCurve([Vector(-0.109996, 0.303918, 0), Vector(-0.078981, 0.304875, 0), Vector(-0.017462, 0.306774, 0), Vector(0.073368, 0.316159, 0), Vector(0.16106, 0.335012, 0), Vector(0.273212, 0.366326, 0), Vector(0.404657, 0.419833, 0), Vector(0.49845, 0.480473, 0), Vector(0.543981, 0.50991, 0)], [4, 1, 1, 1, 1, 1, 4], [0, 0.802046375, 1.590839501, 2.356323732, 3.117333683, 4.600645023, 6], False, 3, [1, 1, 1, 1, 1, 1, 1, 1, 1], False),  # 9
    Part.BSplineCurve([Vector(-0.671976, 0.989893, 0), Vector(-0.670479, 0.93649, 0), Vector(-0.667647, 0.835462, 0), Vector(-0.645883, 0.693678, 0), Vector(-0.606373, 0.572457, 0), Vector(-0.54955, 0.471044, 0), Vector(-0.468754, 0.394318, 0), Vector(-0.386686, 0.349535, 0), Vector(-0.31206, 0.326705, 0), Vector(-0.249468, 0.31368, 0), Vector(-0.181528, 0.305736, 0), Vector(-0.13435, 0.304537, 0), Vector(-0.109996, 0.303918, 0)], [4, 1, 1, 1, 1, 1, 1, 1, 1, 1, 4], [0, 1.565833155, 2.962216993, 4.189303543, 5.288982354, 6.332815194, 7.413212199, 7.997463676, 8.616645061, 9.285877698, 10], False, 3, [1, 1, 1, 1, 1, 1, 1, 1, 1, 1, 1, 1, 1], False),  # 10
    Part.BSplineCurve([Vector(-0.079997, 1.711867, 0), Vector(-0.104701, 1.711424, 0), Vector(-0.152331, 1.710568, 0), Vector(-0.221427, 1.700237, 0), Vector(-0.285169, 1.683464, 0), Vector(-0.362312, 1.653122, 0), Vector(-0.448043, 1.598875, 0), Vector(-0.531527, 1.510179, 0), Vector(-0.595842, 1.402462, 0), Vector(-0.64004, 1.277653, 0), Vector(-0.667388, 1.138404, 0), Vector(-0.670407, 1.040693, 0), Vector(-0.671976, 0.989893, 0)], [4, 1, 1, 1, 1, 1, 1, 1, 1, 1, 4], [0, 0.700350648, 1.350303964, 1.976502457, 2.566526108, 3.697232059, 4.820917017, 5.991835401, 7.230375072, 8.56010518, 10], False, 3, [1, 1, 1, 1, 1, 1, 1, 1, 1, 1, 1, 1, 1], False),  # 11
    Part.BSplineCurve([Vector(0.543981, 0.50991, 0), Vector(0.54383, 0.564923, 0), Vector(0.543539, 0.670679, 0), Vector(0.534928, 0.82206, 0), Vector(0.523629, 0.959589, 0), Vector(0.506787, 1.083133, 0), Vector(0.484945, 1.194075, 0), Vector(0.458178, 1.29263, 0), Vector(0.427688, 1.380195, 0), Vector(0.390401, 1.455313, 0), Vector(0.349154, 1.520925, 0), Vector(0.302405, 1.575917, 0), Vector(0.250619, 1.621021, 0), Vector(0.193683, 1.655658, 0), Vector(0.131418, 1.680006, 0), Vector(0.065753, 1.699887, 0), Vector(-0.005745, 1.709147, 0), Vector(-0.054648, 1.710939, 0), Vector(-0.079997, 1.711867, 0)], [4, 1, 1, 1, 1, 1, 1, 1, 1, 1, 1, 1, 1, 1, 1, 1, 4], [0, 1.724037892, 3.314323882, 4.751173022, 6.048486653, 7.220520937, 8.292645254, 9.247761345, 10.121524596, 10.915637301, 11.671508539, 12.375253584, 13.05973367, 13.748506206, 14.466075588, 15.204857005, 16], False, 3, [1, 1, 1, 1, 1, 1, 1, 1, 1, 1, 1, 1, 1, 1, 1, 1, 1, 1, 1], False),  # 12
], False)
sketch5.addConstraint([
    Sketcher.Constraint("Block", 0),
    Sketcher.Constraint("Block", 1),
    Sketcher.Constraint("Block", 2),
    Sketcher.Constraint("Block", 3),
    Sketcher.Constraint("Block", 4),
    Sketcher.Constraint("Block", 5),
    Sketcher.Constraint("Block", 6),
    Sketcher.Constraint("Block", 7),
    Sketcher.Constraint("Block", 8),
    Sketcher.Constraint("Block", 9),
    Sketcher.Constraint("Block", 10),
    Sketcher.Constraint("Block", 11),
    Sketcher.Constraint("Block", 12),
])
pad4 = doc.addObject("PartDesign::Pad", "Pad003")
body2.addObject(pad4)
pad4.Profile = sketch5
pad4.Length = 0.4
pad4.Reversed = True

doc.recompute()
